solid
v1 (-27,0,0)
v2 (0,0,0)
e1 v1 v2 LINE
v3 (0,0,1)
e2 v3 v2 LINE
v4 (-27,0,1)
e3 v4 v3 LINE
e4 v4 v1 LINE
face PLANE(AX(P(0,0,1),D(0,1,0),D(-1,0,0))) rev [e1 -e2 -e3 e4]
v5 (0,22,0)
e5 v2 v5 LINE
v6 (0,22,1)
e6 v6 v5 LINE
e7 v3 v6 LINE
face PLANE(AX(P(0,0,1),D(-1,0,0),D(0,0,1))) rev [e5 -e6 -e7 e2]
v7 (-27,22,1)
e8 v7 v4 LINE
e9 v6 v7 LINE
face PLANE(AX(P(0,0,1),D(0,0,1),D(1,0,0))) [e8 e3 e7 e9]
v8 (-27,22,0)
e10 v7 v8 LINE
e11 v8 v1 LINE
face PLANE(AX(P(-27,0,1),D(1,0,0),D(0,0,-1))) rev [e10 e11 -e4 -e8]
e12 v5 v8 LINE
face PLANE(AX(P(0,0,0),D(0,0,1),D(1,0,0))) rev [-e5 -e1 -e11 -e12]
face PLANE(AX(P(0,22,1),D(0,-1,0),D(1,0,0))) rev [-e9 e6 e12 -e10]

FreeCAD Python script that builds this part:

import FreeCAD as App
import Part
import Sketcher

V = App.Vector

doc = App.newDocument("Part")
body = doc.addObject("PartDesign::Body", "Body")

sketch1 = body.newObject("Sketcher::SketchObject", "Sketch")
sketch1.AttachmentSupport = (doc.getObject("XY_Plane"), [""])
sketch1.MapMode = "FlatFace"
sketch1.addGeometry(Part.LineSegment(V(-27, 22, 0), V(-27, 0, 0)), False)
sketch1.addGeometry(Part.LineSegment(V(-27, 0, 0), V(0, 0, 0)), False)
sketch1.addGeometry(Part.LineSegment(V(0, 0, 0), V(0, 22, 0)), False)
sketch1.addGeometry(Part.LineSegment(V(0, 22, 0), V(-27, 22, 0)), False)
sketch1.addConstraint(Sketcher.Constraint("Coincident", 0, 2, 1, 1))
sketch1.addConstraint(Sketcher.Constraint("Coincident", 1, 2, 2, 1))
sketch1.addConstraint(Sketcher.Constraint("Coincident", 2, 2, 3, 1))
sketch1.addConstraint(Sketcher.Constraint("Coincident", 3, 2, 0, 1))
sketch1.addConstraint(Sketcher.Constraint("Vertical", 0))
sketch1.addConstraint(Sketcher.Constraint("Horizontal", 1))
sketch1.addConstraint(Sketcher.Constraint("Vertical", 2))
sketch1.addConstraint(Sketcher.Constraint("Horizontal", 3))
sketch1.addConstraint(Sketcher.Constraint("Coincident", 1, 2, -1, 1))
sketch1.addConstraint(Sketcher.Constraint("DistanceX", 1, 1, 1, 2, 27.0))
sketch1.addConstraint(Sketcher.Constraint("DistanceY", 0, 2, 0, 1, 22.0))
pad1 = body.newObject("PartDesign::Pad", "Pad")
pad1.Profile = sketch1
pad1.Length = 1

doc.recompute()
